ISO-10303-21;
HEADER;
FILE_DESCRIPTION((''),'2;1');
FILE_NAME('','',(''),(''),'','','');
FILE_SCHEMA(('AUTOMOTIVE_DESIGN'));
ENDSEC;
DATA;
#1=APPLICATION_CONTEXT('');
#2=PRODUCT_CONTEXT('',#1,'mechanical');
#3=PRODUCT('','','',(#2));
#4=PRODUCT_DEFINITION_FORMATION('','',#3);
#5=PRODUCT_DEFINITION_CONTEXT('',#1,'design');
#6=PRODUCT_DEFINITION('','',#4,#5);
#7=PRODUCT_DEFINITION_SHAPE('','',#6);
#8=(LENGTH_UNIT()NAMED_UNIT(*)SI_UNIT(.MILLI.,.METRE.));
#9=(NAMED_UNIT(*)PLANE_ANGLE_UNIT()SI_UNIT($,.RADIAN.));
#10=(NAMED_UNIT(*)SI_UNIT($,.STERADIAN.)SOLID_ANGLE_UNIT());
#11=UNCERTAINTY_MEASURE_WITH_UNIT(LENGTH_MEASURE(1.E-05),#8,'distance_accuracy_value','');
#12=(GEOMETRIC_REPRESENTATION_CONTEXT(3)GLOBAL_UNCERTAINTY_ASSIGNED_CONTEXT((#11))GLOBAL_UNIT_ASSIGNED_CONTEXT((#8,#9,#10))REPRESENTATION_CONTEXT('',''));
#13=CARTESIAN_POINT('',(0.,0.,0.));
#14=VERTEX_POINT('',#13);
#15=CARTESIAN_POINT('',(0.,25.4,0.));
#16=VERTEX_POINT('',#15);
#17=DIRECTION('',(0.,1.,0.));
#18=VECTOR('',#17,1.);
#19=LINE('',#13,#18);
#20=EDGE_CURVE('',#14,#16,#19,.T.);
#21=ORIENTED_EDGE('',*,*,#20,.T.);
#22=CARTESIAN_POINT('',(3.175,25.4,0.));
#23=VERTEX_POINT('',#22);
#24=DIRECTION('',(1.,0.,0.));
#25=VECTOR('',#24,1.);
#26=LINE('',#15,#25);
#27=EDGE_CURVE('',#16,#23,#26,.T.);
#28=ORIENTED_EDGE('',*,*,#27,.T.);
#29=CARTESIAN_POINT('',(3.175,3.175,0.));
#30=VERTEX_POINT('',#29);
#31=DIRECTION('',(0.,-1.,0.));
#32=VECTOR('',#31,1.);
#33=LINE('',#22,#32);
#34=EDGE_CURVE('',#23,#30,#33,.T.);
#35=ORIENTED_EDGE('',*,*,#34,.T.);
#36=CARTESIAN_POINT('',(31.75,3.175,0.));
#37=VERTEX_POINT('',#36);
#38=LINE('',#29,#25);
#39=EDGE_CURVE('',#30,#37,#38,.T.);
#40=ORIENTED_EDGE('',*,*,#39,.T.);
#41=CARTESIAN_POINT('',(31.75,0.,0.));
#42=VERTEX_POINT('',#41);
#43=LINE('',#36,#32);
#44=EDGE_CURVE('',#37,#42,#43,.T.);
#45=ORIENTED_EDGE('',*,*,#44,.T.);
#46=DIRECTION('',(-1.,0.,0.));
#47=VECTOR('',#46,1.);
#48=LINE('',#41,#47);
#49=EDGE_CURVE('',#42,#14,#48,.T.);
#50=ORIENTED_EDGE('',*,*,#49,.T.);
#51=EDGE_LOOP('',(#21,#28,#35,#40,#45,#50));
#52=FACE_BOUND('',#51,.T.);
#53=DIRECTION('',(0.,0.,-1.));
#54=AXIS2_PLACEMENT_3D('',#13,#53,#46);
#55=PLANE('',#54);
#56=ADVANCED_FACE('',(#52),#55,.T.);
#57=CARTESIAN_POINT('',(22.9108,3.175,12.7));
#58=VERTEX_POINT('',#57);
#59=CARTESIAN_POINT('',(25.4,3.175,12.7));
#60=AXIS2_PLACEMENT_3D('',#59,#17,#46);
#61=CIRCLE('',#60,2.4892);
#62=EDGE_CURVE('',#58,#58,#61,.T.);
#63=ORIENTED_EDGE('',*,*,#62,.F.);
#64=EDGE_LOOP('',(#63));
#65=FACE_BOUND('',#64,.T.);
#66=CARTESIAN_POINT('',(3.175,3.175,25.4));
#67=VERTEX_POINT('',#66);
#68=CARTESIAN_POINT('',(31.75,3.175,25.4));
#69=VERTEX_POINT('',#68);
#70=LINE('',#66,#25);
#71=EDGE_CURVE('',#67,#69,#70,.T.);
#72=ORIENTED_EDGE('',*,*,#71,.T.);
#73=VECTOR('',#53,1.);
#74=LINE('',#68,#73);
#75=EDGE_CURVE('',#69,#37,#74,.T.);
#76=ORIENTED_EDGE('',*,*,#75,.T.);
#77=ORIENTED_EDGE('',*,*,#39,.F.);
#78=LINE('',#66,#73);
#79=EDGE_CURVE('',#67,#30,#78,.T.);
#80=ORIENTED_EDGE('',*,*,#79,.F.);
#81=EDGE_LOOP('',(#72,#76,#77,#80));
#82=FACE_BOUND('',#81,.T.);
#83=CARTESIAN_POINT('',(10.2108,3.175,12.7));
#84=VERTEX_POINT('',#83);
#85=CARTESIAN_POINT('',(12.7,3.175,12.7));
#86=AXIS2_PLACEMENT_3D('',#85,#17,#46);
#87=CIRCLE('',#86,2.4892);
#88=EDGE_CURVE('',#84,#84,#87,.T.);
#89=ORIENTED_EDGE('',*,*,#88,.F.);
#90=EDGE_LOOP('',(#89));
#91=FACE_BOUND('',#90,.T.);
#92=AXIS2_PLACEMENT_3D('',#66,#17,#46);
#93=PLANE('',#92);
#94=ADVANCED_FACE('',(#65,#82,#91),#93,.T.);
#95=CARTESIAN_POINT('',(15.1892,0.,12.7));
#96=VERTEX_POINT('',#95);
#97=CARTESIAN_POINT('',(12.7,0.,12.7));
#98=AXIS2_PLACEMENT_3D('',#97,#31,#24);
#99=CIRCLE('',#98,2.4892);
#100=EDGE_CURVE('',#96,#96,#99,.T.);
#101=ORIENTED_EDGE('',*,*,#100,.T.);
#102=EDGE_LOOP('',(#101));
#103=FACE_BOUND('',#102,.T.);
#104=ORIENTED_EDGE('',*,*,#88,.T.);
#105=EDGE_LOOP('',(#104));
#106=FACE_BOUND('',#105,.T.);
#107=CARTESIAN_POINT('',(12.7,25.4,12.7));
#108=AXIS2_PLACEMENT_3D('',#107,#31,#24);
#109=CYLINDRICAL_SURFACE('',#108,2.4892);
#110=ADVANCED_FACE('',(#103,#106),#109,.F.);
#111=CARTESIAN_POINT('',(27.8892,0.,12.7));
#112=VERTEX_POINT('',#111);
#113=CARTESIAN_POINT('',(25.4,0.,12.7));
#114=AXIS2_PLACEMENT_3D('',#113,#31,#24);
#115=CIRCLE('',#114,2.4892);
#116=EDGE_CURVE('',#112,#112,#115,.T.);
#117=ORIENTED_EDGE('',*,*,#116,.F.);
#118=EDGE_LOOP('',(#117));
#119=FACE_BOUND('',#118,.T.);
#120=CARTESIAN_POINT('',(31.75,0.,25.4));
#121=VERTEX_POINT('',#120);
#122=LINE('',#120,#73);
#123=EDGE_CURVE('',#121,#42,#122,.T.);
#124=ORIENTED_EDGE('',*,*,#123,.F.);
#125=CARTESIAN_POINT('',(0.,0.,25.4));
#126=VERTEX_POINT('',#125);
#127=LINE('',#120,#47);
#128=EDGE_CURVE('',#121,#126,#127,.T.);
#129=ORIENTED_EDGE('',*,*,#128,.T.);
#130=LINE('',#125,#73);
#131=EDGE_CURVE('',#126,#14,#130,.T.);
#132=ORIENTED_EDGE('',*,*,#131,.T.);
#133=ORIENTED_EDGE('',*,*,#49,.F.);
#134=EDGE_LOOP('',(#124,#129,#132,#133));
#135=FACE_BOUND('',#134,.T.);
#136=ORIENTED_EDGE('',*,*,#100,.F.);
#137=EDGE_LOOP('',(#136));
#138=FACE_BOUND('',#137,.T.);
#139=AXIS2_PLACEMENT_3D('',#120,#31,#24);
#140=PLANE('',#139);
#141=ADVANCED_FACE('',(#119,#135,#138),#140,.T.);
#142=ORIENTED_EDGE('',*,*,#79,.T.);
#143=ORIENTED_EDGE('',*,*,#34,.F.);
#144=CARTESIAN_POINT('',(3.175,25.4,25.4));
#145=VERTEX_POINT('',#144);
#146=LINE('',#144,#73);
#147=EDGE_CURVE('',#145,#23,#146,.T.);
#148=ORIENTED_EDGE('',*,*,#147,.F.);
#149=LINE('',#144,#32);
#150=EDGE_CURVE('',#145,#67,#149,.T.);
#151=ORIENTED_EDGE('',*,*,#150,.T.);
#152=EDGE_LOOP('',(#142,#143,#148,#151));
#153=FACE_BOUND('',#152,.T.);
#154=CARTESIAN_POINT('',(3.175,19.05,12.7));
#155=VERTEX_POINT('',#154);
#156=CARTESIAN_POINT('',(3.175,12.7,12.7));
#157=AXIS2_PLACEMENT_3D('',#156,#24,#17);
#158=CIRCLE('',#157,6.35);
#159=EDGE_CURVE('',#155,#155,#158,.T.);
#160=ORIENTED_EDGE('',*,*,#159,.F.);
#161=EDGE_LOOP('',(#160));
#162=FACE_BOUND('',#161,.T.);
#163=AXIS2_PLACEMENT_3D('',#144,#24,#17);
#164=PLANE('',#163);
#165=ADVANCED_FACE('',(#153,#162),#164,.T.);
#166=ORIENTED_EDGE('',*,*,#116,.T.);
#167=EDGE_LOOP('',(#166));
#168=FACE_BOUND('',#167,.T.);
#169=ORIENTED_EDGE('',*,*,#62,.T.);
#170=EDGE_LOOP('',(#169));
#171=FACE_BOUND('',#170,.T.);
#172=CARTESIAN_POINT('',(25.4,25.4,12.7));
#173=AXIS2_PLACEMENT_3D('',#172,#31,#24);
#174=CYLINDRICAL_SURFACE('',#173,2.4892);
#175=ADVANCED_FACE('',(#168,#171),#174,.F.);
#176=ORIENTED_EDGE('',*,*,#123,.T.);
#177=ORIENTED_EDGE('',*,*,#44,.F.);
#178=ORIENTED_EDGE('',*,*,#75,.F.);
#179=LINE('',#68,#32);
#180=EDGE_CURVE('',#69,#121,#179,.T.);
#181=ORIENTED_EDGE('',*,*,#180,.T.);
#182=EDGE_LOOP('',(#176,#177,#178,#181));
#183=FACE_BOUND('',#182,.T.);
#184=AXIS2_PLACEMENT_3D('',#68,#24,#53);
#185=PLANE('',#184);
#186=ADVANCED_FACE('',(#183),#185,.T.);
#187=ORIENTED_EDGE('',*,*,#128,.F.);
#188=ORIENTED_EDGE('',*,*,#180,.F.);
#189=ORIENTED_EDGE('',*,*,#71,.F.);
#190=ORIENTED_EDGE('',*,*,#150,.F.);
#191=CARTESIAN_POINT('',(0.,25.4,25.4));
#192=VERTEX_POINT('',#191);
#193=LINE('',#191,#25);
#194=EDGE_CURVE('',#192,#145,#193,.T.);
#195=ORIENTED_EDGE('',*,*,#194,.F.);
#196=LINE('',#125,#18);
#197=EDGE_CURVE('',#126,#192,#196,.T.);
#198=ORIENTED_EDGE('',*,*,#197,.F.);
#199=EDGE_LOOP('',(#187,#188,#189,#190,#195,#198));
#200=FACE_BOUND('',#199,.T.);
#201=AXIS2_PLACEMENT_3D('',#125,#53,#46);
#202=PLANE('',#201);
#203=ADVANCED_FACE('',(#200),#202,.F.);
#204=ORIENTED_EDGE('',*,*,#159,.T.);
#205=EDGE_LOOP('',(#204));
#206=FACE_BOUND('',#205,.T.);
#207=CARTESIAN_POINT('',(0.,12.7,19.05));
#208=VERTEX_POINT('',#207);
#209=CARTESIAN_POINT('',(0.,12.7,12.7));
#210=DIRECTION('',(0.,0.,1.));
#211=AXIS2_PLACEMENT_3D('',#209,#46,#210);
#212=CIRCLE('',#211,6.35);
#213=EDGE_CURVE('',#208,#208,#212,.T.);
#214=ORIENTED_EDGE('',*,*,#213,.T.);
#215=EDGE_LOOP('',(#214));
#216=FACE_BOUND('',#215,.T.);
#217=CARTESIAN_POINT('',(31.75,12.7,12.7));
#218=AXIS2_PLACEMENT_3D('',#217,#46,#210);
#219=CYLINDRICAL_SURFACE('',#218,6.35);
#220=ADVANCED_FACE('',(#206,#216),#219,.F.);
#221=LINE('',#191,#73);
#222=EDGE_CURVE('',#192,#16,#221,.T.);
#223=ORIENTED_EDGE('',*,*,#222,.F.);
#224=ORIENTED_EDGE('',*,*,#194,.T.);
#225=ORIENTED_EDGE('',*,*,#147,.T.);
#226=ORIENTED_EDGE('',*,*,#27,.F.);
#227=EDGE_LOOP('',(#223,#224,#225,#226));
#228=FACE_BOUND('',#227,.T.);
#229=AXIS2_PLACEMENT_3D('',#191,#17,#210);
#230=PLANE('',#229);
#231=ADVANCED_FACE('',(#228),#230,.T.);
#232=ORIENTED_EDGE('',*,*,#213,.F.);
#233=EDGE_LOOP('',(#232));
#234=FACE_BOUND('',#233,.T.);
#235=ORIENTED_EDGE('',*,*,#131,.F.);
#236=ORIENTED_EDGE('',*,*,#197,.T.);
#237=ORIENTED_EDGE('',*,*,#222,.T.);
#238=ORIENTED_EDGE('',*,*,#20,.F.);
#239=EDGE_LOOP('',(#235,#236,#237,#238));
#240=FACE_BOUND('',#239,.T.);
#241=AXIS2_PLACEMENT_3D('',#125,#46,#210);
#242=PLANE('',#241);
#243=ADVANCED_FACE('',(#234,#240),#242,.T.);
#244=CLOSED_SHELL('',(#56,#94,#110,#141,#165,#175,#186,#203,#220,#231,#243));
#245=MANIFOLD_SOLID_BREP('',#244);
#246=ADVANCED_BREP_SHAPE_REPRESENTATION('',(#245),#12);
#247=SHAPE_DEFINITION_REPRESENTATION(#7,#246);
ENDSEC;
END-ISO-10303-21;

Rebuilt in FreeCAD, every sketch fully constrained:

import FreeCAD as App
import Part
import Sketcher
from FreeCAD import Vector
Q = App.Units.Quantity


def add_polygon(sketch, points):
    """Adds a closed chain of lines whose ends are joined by coincident constraints."""
    first, n = sketch.GeometryCount, len(points)
    for a, b in zip(points, points[1:] + points[:1]):
        sketch.addGeometry(Part.LineSegment(App.Vector(*a, 0), App.Vector(*b, 0)), False)
    for i in range(n):
        sketch.addConstraint(Sketcher.Constraint("Coincident", first + i, 2, first + (i + 1) % n, 1))

doc = App.newDocument("Part")
body = doc.addObject("PartDesign::Body", "Body")

sketch1 = body.newObject("Sketcher::SketchObject", "Sketch")
sketch1.AttachmentSupport = (doc.getObject("XY_Plane"), [""])
sketch1.MapMode = "FlatFace"
add_polygon(sketch1, [(0, 25.4), (0, 0), (31.75, 0), (31.75, 3.175), (3.175, 3.175), (3.175, 25.4)])
sketch1.addConstraint(Sketcher.Constraint("Vertical", 0))
sketch1.addConstraint(Sketcher.Constraint("Horizontal", 1))
sketch1.addConstraint(Sketcher.Constraint("Vertical", 2))
sketch1.addConstraint(Sketcher.Constraint("Horizontal", 3))
sketch1.addConstraint(Sketcher.Constraint("Vertical", 4))
sketch1.addConstraint(Sketcher.Constraint("Horizontal", 5))
sketch1.addConstraint(Sketcher.Constraint("Coincident", 0, 2, -1, 1))
sketch1.addConstraint(Sketcher.Constraint("Equal", 5, 2))
sketch1.addConstraint(Sketcher.Constraint("DistanceY", 0, 2, 0, 1, Q("1 in")))
sketch1.addConstraint(Sketcher.Constraint("DistanceX", 1, 1, 1, 2, Q("1.25 in")))
sketch1.addConstraint(Sketcher.Constraint("DistanceX", 3, 2, 3, 1, Q("1.125 in")))
pad1 = body.newObject("PartDesign::Pad", "Pad")
pad1.Profile = sketch1
pad1.Length = Q("1 in")

sketch2 = body.newObject("Sketcher::SketchObject", "Sketch001")
sketch2.AttachmentSupport = (doc.getObject("YZ_Plane"), [""])
sketch2.MapMode = "FlatFace"
sketch2.addGeometry(Part.Circle(Vector(12.7, 12.7, 0), Vector(0, 0, 1), 6.35), False)
sketch2.addConstraint(Sketcher.Constraint("Diameter", 0, Q("0.5 in")))
sketch2.addConstraint(Sketcher.Constraint("DistanceX", -1, 1, 0, 3, Q("0.5 in")))
sketch2.addConstraint(Sketcher.Constraint("DistanceY", -1, 1, 0, 3, Q("0.5 in")))
pocket1 = body.newObject("PartDesign::Pocket", "Pocket")
pocket1.Profile = sketch2
pocket1.Type = "ThroughAll"
pocket1.Reversed = True

sketch3 = body.newObject("Sketcher::SketchObject", "Sketch002")
sketch3.AttachmentSupport = (doc.getObject("XZ_Plane"), [""])
sketch3.MapMode = "FlatFace"
sketch3.addGeometry(Part.Circle(Vector(12.7, 12.7, 0), Vector(0, 0, 1), 2.4892), False)
sketch3.addGeometry(Part.Circle(Vector(25.4, 12.7, 0), Vector(0, 0, 1), 2.4892), False)
sketch3.addConstraint(Sketcher.Constraint("Equal", 0, 1))
sketch3.addConstraint(Sketcher.Constraint("Horizontal", 0, 3, 1, 3))
sketch3.addConstraint(Sketcher.Constraint("Diameter", 0, Q("0.196 in")))
sketch3.addConstraint(Sketcher.Constraint("DistanceX", -1, 1, 1, 3, Q("1 in")))
sketch3.addConstraint(Sketcher.Constraint("DistanceX", -1, 1, 0, 3, Q("0.5 in")))
sketch3.addConstraint(Sketcher.Constraint("DistanceY", -1, 1, 0, 3, Q("0.5 in")))
pocket2 = body.newObject("PartDesign::Pocket", "Pocket001")
pocket2.Profile = sketch3
pocket2.Type = "ThroughAll"

doc.recompute()
